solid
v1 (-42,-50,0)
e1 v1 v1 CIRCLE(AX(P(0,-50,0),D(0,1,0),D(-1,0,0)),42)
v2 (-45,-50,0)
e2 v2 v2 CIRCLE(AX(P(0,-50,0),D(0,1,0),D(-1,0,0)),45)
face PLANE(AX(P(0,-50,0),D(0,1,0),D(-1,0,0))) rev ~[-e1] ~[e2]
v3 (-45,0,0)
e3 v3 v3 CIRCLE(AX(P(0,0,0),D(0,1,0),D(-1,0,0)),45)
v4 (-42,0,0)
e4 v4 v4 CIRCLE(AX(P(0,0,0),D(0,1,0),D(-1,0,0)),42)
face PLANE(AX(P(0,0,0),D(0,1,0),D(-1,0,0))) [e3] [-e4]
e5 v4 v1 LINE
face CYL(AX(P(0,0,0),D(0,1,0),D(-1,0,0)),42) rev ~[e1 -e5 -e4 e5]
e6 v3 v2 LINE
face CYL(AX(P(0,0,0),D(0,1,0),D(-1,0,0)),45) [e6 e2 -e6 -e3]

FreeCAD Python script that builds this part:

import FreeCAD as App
import Part
import Sketcher

V = App.Vector

doc = App.newDocument("Part")
params = doc.addObject("Spreadsheet::Sheet", "Params")
for row, (alias, value) in enumerate([
    ("sketch1_diameter", "90 mm"),
    ("sketch1_diameter2", "84 mm"),
    ("pad1_length", "50 mm"),
], start=1):
    params.set(f"A{row}", alias)
    params.set(f"B{row}", "=" + value)
    params.setAlias(f"B{row}", alias)

body = doc.addObject("PartDesign::Body", "Body")

sketch1 = body.newObject("Sketcher::SketchObject", "Sketch")
sketch1.AttachmentSupport = (doc.getObject("XZ_Plane"), [""])
sketch1.MapMode = "FlatFace"
sketch1.addGeometry([
    Part.Circle(V(0, 0, 0), V(0, 0, 1), 45),
    Part.Circle(V(0, 0, 0), V(0, 0, 1), 42),
], False)
sketch1.addConstraint([
    Sketcher.Constraint("Coincident", 0, 3, -1, 1),
    Sketcher.Constraint("Coincident", 1, 3, -1, 1),
    Sketcher.Constraint("Diameter", 0, 90.0),
    Sketcher.Constraint("Diameter", 1, 84.0),
])
sketch1.setExpression("Constraints[2]", "Params.sketch1_diameter")
sketch1.setExpression("Constraints[3]", "Params.sketch1_diameter2")
pad1 = body.newObject("PartDesign::Pad", "Pad")
pad1.Profile = sketch1
pad1.setExpression("Length", "Params.pad1_length")

doc.recompute()
